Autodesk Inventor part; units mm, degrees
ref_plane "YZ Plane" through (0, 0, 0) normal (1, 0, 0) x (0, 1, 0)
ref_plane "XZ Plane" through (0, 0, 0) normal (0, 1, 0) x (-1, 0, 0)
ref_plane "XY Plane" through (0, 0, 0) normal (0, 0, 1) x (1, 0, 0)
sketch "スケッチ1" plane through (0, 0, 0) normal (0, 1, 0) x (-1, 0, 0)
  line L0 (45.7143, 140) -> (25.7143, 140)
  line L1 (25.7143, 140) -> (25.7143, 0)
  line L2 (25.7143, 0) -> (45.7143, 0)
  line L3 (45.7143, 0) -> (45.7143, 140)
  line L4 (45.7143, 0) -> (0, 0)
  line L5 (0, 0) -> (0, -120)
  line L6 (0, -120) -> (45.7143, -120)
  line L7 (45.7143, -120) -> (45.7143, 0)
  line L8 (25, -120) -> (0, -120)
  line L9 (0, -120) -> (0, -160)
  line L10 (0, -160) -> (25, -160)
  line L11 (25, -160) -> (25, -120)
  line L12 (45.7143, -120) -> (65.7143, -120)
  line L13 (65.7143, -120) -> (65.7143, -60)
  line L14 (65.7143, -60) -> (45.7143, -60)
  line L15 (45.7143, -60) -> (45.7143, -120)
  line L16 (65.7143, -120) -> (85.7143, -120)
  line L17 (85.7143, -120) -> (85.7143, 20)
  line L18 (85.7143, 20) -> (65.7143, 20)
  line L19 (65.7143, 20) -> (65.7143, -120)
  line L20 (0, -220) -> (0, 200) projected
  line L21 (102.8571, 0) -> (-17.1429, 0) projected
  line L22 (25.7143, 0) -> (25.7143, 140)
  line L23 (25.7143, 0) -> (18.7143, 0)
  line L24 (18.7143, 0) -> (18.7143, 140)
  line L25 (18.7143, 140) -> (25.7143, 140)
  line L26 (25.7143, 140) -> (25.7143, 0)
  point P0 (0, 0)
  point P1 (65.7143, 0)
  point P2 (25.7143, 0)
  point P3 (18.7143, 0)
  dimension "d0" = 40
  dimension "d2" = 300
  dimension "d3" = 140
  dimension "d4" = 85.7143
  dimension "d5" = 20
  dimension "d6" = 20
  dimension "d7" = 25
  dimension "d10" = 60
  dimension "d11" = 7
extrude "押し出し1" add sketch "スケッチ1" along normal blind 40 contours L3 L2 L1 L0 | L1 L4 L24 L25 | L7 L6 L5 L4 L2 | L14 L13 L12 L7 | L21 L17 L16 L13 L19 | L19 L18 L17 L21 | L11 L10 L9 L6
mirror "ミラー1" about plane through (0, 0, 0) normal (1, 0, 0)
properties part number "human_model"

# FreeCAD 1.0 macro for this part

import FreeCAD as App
import Part
import Sketcher


def add_polygon(sketch, points):
    """Adds a closed chain of lines whose ends are joined by coincident constraints."""
    first, n = sketch.GeometryCount, len(points)
    for a, b in zip(points, points[1:] + points[:1]):
        sketch.addGeometry(Part.LineSegment(App.Vector(*a, 0), App.Vector(*b, 0)), False)
    for i in range(n):
        sketch.addConstraint(Sketcher.Constraint("Coincident", first + i, 2, first + (i + 1) % n, 1))

doc = App.newDocument("Part")
body = doc.addObject("PartDesign::Body", "Body")

# Sketch on XZ plane
sketch1 = body.newObject("Sketcher::SketchObject", "Sketch")
sketch1.AttachmentSupport = (doc.getObject("XZ_Plane"), [""])
sketch1.MapMode = "FlatFace"
add_polygon(sketch1, [(-46, 140), (-19, 140), (-19, 0), (0, 0), (0, -160), (-25, -160), (-25, -120), (-86, -120), (-86, 20), (-66, 20), (-66, -60), (-46, -60)])  # lines 0-11
sketch1.addConstraint([
    Sketcher.Constraint("Horizontal", 0),
    Sketcher.Constraint("Vertical", 1),
    Sketcher.Constraint("Horizontal", 2),
    Sketcher.Constraint("Vertical", 3),
    Sketcher.Constraint("Horizontal", 4),
    Sketcher.Constraint("Vertical", 5),
    Sketcher.Constraint("Horizontal", 6),
    Sketcher.Constraint("Vertical", 7),
    Sketcher.Constraint("Horizontal", 8),
    Sketcher.Constraint("Vertical", 9),
    Sketcher.Constraint("Horizontal", 10),
    Sketcher.Constraint("Vertical", 11),
    Sketcher.Constraint("Coincident", 2, 2, -1, 1),
    Sketcher.Constraint("Equal", 8, 10),
    Sketcher.Constraint("Equal", 1, 7),
    Sketcher.Constraint("DistanceX", 4, 2, 4, 1, 25.0),
    Sketcher.Constraint("DistanceX", 8, 1, 8, 2, 20.0),
    Sketcher.Constraint("DistanceY", 1, 2, 1, 1, 140.0),
    Sketcher.Constraint("DistanceY", 5, 1, 5, 2, 40.0),
    Sketcher.Constraint("DistanceY", -1, 1, 7, 2, 20.0),
    Sketcher.Constraint("DistanceY", 9, 2, -1, 1, 60.0),
    Sketcher.Constraint("DistanceX", 0, 1, 0, 2, 27.0),
    Sketcher.Constraint("DistanceX", 6, 2, -1, 1, 85.7143),
])
pad1 = body.newObject("PartDesign::Pad", "Pad")
pad1.Profile = sketch1
pad1.Length = 40
pad1.Reversed = True
doc.recompute()

mirrored = body.newObject("PartDesign::Mirrored", "Mirrored")
mirrored.TransformMode = "Transform body"
mirrored.MirrorPlane = (doc.getObject("YZ_Plane"), [""])
body.Tip = mirrored

doc.recompute()
